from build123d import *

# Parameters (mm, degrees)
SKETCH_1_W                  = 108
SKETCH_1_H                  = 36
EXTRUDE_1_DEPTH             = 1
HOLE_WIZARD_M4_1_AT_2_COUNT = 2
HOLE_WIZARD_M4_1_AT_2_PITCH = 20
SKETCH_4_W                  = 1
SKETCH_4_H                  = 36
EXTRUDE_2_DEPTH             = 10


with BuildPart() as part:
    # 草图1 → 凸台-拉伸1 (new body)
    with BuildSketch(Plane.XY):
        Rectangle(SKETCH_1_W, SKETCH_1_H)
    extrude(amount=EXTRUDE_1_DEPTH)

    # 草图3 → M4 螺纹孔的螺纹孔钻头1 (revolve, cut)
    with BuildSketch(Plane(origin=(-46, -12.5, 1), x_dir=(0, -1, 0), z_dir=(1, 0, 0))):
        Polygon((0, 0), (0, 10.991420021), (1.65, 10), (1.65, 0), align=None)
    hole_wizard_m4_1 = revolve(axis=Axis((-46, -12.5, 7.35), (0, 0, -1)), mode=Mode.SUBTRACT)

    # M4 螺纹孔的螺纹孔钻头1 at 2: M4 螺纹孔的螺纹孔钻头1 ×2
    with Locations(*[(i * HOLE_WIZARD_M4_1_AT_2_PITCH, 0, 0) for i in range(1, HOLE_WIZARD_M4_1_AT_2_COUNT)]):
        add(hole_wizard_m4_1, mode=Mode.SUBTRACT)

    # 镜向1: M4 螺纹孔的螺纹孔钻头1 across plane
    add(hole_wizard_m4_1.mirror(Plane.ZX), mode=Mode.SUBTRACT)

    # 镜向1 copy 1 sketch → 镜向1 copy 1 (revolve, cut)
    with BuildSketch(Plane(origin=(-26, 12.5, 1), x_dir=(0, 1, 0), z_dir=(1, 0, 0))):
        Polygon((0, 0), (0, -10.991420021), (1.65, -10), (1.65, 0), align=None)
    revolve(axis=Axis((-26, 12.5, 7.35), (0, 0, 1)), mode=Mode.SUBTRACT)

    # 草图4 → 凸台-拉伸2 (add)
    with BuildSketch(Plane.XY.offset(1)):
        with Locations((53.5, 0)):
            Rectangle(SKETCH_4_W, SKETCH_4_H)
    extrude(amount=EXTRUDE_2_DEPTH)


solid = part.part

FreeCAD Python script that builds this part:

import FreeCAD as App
import Part
import Sketcher
from FreeCAD import Vector
Q = App.Units.Quantity

doc = App.newDocument("Part")
body = doc.addObject("PartDesign::Body", "Body")

# Sketch on XY plane
sketch1 = body.newObject("Sketcher::SketchObject", "Sketch")
sketch1.AttachmentSupport = (doc.getObject("XY_Plane"), [""])
sketch1.MapMode = "FlatFace"
sketch1.addGeometry(Part.LineSegment(Vector(-54, 18, 0), Vector(-54, -18, 0)), False)
sketch1.addGeometry(Part.LineSegment(Vector(-54, -18, 0), Vector(54, -18, 0)), False)
sketch1.addGeometry(Part.LineSegment(Vector(54, -18, 0), Vector(54, 18, 0)), False)
sketch1.addGeometry(Part.LineSegment(Vector(54, 18, 0), Vector(-54, 18, 0)), False)
sketch1.addConstraint(Sketcher.Constraint("Coincident", 0, 2, 1, 1))
sketch1.addConstraint(Sketcher.Constraint("Coincident", 1, 2, 2, 1))
sketch1.addConstraint(Sketcher.Constraint("Coincident", 2, 2, 3, 1))
sketch1.addConstraint(Sketcher.Constraint("Coincident", 3, 2, 0, 1))
sketch1.addConstraint(Sketcher.Constraint("Vertical", 0))
sketch1.addConstraint(Sketcher.Constraint("Horizontal", 1))
sketch1.addConstraint(Sketcher.Constraint("Vertical", 2))
sketch1.addConstraint(Sketcher.Constraint("Horizontal", 3))
sketch1.addConstraint(Sketcher.Constraint("Symmetric", 0, 2, 2, 2, -1, 1))
sketch1.addConstraint(Sketcher.Constraint("DistanceX", 1, 1, 1, 2, Q("108 mm")))
sketch1.addConstraint(Sketcher.Constraint("DistanceY", 0, 2, 0, 1, Q("36 mm")))
pad1 = body.newObject("PartDesign::Pad", "Pad")
pad1.Profile = sketch1
pad1.Length = 1

# Sketch on YZ plane
sketch2 = body.newObject("Sketcher::SketchObject", "Sketch001")
sketch2.AttachmentSupport = (doc.getObject("YZ_Plane"), [""])
sketch2.MapMode = "FlatFace"
sketch2.AttachmentOffset = App.Placement(Vector(0, 0, -46), App.Rotation())
sketch2.addGeometry(Part.LineSegment(Vector(-12.5, -10, 0), Vector(-12.5, 1, 0)), False)
sketch2.addGeometry(Part.LineSegment(Vector(-12.5, 1, 0), Vector(-14.2, 1, 0)), False)
sketch2.addGeometry(Part.LineSegment(Vector(-14.2, 1, 0), Vector(-14.2, -9, 0)), False)
sketch2.addGeometry(Part.LineSegment(Vector(-14.2, -9, 0), Vector(-12.5, -10, 0)), False)
sketch2.addGeometry(Part.LineSegment(Vector(-12.5, 1, 0), Vector(-12.5, -10, 0)), True)  # axis
sketch2.addConstraint(Sketcher.Constraint("Coincident", 0, 2, 1, 1))
sketch2.addConstraint(Sketcher.Constraint("Coincident", 1, 2, 2, 1))
sketch2.addConstraint(Sketcher.Constraint("Coincident", 2, 2, 3, 1))
sketch2.addConstraint(Sketcher.Constraint("Coincident", 3, 2, 0, 1))
sketch2.addConstraint(Sketcher.Constraint("Vertical", 0))
sketch2.addConstraint(Sketcher.Constraint("Horizontal", 1))
sketch2.addConstraint(Sketcher.Constraint("Vertical", 2))
sketch2.addConstraint(Sketcher.Constraint("Vertical", 4))
sketch2.addConstraint(Sketcher.Constraint("Coincident", 4, 1, 0, 2))
sketch2.addConstraint(Sketcher.Constraint("Equal", 0, 4))
sketch2.addConstraint(Sketcher.Constraint("DistanceY", 2, 2, 2, 1, Q("10 mm")))
sketch2.addConstraint(Sketcher.Constraint("Angle", 3, Q("-31 deg")))
sketch2.addConstraint(Sketcher.Constraint("DistanceY", -1, 1, 0, 2, Q("1 mm")))
sketch2.addConstraint(Sketcher.Constraint("DistanceX", 1, 2, 1, 1, Q("1.65 mm")))
sketch2.addConstraint(Sketcher.Constraint("DistanceX", 0, 2, -1, 1, Q("12.5 mm")))
groove = body.newObject("PartDesign::Groove", "Groove")
groove.Profile = sketch2
groove.ReferenceAxis = (sketch2, ["Axis0"])
groove.Angle = 360
doc.recompute()

linearpattern = body.newObject("PartDesign::LinearPattern", "LinearPattern")
linearpattern.Originals = [groove]
linearpattern.Direction = (doc.getObject("X_Axis"), [""])
linearpattern.Mode = "offset"
linearpattern.Offset = 20
linearpattern.Occurrences = 2
body.Tip = linearpattern
doc.recompute()

mirrored = body.newObject("PartDesign::Mirrored", "Mirrored")
mirrored.Originals = [groove]
mirrored.MirrorPlane = (doc.getObject("XZ_Plane"), [""])
body.Tip = mirrored

# Sketch on YZ plane
sketch3 = body.newObject("Sketcher::SketchObject", "Sketch002")
sketch3.AttachmentSupport = (doc.getObject("YZ_Plane"), [""])
sketch3.MapMode = "FlatFace"
sketch3.AttachmentOffset = App.Placement(Vector(0, 0, -26), App.Rotation())
sketch3.addGeometry(Part.LineSegment(Vector(12.5, 1, 0), Vector(12.5, -10, 0)), False)
sketch3.addGeometry(Part.LineSegment(Vector(12.5, -10, 0), Vector(14.2, -9, 0)), False)
sketch3.addGeometry(Part.LineSegment(Vector(14.2, -9, 0), Vector(14.2, 1, 0)), False)
sketch3.addGeometry(Part.LineSegment(Vector(14.2, 1, 0), Vector(12.5, 1, 0)), False)
sketch3.addGeometry(Part.LineSegment(Vector(12.5, -10, 0), Vector(12.5, 1, 0)), True)  # axis
sketch3.addConstraint(Sketcher.Constraint("Coincident", 0, 2, 1, 1))
sketch3.addConstraint(Sketcher.Constraint("Coincident", 1, 2, 2, 1))
sketch3.addConstraint(Sketcher.Constraint("Coincident", 2, 2, 3, 1))
sketch3.addConstraint(Sketcher.Constraint("Coincident", 3, 2, 0, 1))
sketch3.addConstraint(Sketcher.Constraint("Vertical", 0))
sketch3.addConstraint(Sketcher.Constraint("Vertical", 2))
sketch3.addConstraint(Sketcher.Constraint("Horizontal", 3))
sketch3.addConstraint(Sketcher.Constraint("Vertical", 4))
sketch3.addConstraint(Sketcher.Constraint("Coincident", 4, 1, 0, 2))
sketch3.addConstraint(Sketcher.Constraint("Horizontal", 2, 2, 4, 2))
sketch3.addConstraint(Sketcher.Constraint("DistanceY", 2, 1, 2, 2, Q("10 mm")))
sketch3.addConstraint(Sketcher.Constraint("Angle", 1, Q("31 deg")))
sketch3.addConstraint(Sketcher.Constraint("DistanceY", 1, 2, -1, 1, Q("9 mm")))
sketch3.addConstraint(Sketcher.Constraint("DistanceX", 3, 2, 3, 1, Q("1.65 mm")))
sketch3.addConstraint(Sketcher.Constraint("DistanceX", -1, 1, 0, 2, Q("12.5 mm")))
groove2 = body.newObject("PartDesign::Groove", "Groove001")
groove2.Profile = sketch3
groove2.ReferenceAxis = (sketch3, ["Axis0"])
groove2.Angle = 360

# Sketch on XY plane
sketch4 = body.newObject("Sketcher::SketchObject", "Sketch003")
sketch4.AttachmentSupport = (doc.getObject("XY_Plane"), [""])
sketch4.MapMode = "FlatFace"
sketch4.AttachmentOffset = App.Placement(Vector(0, 0, 1), App.Rotation())
sketch4.addGeometry(Part.LineSegment(Vector(53, 18, 0), Vector(53, -18, 0)), False)
sketch4.addGeometry(Part.LineSegment(Vector(53, -18, 0), Vector(54, -18, 0)), False)
sketch4.addGeometry(Part.LineSegment(Vector(54, -18, 0), Vector(54, 18, 0)), False)
sketch4.addGeometry(Part.LineSegment(Vector(54, 18, 0), Vector(53, 18, 0)), False)
sketch4.addConstraint(Sketcher.Constraint("Coincident", 0, 2, 1, 1))
sketch4.addConstraint(Sketcher.Constraint("Coincident", 1, 2, 2, 1))
sketch4.addConstraint(Sketcher.Constraint("Coincident", 2, 2, 3, 1))
sketch4.addConstraint(Sketcher.Constraint("Coincident", 3, 2, 0, 1))
sketch4.addConstraint(Sketcher.Constraint("Vertical", 0))
sketch4.addConstraint(Sketcher.Constraint("Horizontal", 1))
sketch4.addConstraint(Sketcher.Constraint("Vertical", 2))
sketch4.addConstraint(Sketcher.Constraint("Horizontal", 3))
sketch4.addConstraint(Sketcher.Constraint("DistanceX", 1, 1, 1, 2, Q("1 mm")))
sketch4.addConstraint(Sketcher.Constraint("DistanceY", 0, 2, 0, 1, Q("36 mm")))
sketch4.addConstraint(Sketcher.Constraint("DistanceX", -1, 1, 0, 2, Q("53 mm")))
sketch4.addConstraint(Sketcher.Constraint("DistanceY", 0, 2, -1, 1, Q("18 mm")))
pad2 = body.newObject("PartDesign::Pad", "Pad001")
pad2.Profile = sketch4
pad2.Length = 10

doc.recompute()
